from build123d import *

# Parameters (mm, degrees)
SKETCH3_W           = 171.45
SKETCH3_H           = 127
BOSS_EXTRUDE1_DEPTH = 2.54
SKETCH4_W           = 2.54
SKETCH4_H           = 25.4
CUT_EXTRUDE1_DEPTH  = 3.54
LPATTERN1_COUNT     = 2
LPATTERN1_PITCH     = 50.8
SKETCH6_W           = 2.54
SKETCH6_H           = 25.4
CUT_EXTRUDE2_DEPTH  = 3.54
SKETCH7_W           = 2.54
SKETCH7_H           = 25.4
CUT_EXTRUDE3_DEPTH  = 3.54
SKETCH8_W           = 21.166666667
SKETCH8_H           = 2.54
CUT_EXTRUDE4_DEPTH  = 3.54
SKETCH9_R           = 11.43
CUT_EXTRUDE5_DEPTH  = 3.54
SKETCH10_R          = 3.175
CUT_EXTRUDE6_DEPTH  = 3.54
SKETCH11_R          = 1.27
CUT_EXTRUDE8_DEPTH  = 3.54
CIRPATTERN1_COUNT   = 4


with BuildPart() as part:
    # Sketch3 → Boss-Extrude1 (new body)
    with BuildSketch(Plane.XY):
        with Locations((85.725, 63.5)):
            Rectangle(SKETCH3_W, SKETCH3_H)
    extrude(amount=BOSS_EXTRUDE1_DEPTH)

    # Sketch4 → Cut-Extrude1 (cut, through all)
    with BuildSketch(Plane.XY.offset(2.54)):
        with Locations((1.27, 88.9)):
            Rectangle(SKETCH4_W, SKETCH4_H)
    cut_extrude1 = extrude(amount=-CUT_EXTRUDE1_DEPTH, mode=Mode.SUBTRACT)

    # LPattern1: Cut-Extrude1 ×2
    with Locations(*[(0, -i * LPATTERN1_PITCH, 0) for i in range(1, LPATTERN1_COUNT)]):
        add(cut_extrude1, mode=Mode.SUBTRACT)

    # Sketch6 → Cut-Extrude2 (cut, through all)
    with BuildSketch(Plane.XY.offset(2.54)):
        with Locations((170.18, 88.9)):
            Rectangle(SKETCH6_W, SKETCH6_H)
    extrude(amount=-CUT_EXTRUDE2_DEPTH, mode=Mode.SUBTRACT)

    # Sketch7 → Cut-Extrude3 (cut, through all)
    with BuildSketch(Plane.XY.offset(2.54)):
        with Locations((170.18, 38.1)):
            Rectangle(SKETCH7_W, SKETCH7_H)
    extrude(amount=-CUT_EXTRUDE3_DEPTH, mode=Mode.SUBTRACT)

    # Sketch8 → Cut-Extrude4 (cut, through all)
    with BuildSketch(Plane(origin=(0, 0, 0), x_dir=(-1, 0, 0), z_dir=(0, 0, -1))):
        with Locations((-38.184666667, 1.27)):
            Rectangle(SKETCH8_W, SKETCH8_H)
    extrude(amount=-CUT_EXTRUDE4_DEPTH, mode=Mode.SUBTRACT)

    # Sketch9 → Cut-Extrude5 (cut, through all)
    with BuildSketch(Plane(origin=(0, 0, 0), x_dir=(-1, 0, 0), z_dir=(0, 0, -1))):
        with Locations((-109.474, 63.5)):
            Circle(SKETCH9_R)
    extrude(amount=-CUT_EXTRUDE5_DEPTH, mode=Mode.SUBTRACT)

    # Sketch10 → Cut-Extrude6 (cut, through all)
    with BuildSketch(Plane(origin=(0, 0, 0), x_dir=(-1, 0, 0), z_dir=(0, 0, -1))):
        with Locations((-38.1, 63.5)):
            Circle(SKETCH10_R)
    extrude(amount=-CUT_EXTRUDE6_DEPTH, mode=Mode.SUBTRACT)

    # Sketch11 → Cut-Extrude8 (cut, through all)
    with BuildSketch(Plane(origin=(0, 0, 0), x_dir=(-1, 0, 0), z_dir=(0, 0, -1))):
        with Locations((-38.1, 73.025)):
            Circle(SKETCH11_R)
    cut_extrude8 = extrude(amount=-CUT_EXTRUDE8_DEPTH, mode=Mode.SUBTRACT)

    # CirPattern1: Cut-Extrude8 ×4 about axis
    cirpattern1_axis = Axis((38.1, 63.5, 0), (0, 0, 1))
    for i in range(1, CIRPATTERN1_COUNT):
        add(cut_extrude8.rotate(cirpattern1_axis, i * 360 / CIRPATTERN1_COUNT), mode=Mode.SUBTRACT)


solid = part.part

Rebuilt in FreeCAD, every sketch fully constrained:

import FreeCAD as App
import Part
import Sketcher
from FreeCAD import Vector
Q = App.Units.Quantity


def add_polygon(sketch, points):
    """Adds a closed chain of lines whose ends are joined by coincident constraints."""
    first, n = sketch.GeometryCount, len(points)
    for a, b in zip(points, points[1:] + points[:1]):
        sketch.addGeometry(Part.LineSegment(App.Vector(*a, 0), App.Vector(*b, 0)), False)
    for i in range(n):
        sketch.addConstraint(Sketcher.Constraint("Coincident", first + i, 2, first + (i + 1) % n, 1))

doc = App.newDocument("Part")
body = doc.addObject("PartDesign::Body", "Body")

sketch1 = doc.addObject("Sketcher::SketchObject", "Sketch")
body.addObject(sketch1)
sketch1.AttachmentSupport = (doc.XY_Plane, [""])
sketch1.MapMode = "FlatFace"
add_polygon(sketch1, [(0, 127), (0, 0), (171, 0), (171, 127)])
sketch1.addConstraint(Sketcher.Constraint("Vertical", 0))
sketch1.addConstraint(Sketcher.Constraint("Horizontal", 1))
sketch1.addConstraint(Sketcher.Constraint("Vertical", 2))
sketch1.addConstraint(Sketcher.Constraint("Horizontal", 3))
sketch1.addConstraint(Sketcher.Constraint("Coincident", 0, 2, -1, 1))
sketch1.addConstraint(Sketcher.Constraint("DistanceY", 0, 2, 0, 1, Q("5 in")))
sketch1.addConstraint(Sketcher.Constraint("DistanceX", 1, 1, 1, 2, Q("6.75 in")))
pad1 = doc.addObject("PartDesign::Pad", "Pad")
body.addObject(pad1)
pad1.Profile = sketch1
pad1.Length = Q("0.1 in")

sketch2 = doc.addObject("Sketcher::SketchObject", "Sketch001")
body.addObject(sketch2)
sketch2.AttachmentSupport = (doc.XY_Plane, [""])
sketch2.MapMode = "FlatFace"
sketch2.AttachmentOffset = App.Placement(Vector(0, 0, 0.1 * 25.4), App.Rotation())
add_polygon(sketch2, [(0, 101.6), (0, 76.2), (2.5, 76.2), (2.5, 101.6)])
sketch2.addConstraint(Sketcher.Constraint("Vertical", 0))
sketch2.addConstraint(Sketcher.Constraint("Horizontal", 1))
sketch2.addConstraint(Sketcher.Constraint("Vertical", 2))
sketch2.addConstraint(Sketcher.Constraint("Horizontal", 3))
sketch2.addConstraint(Sketcher.Constraint("PointOnObject", 0, 2, -2))
sketch2.addConstraint(Sketcher.Constraint("DistanceY", 0, 2, 0, 1, Q("1 in")))
sketch2.addConstraint(Sketcher.Constraint("DistanceX", 1, 1, 1, 2, Q("0.1 in")))
sketch2.addConstraint(Sketcher.Constraint("DistanceY", -1, 1, 0, 2, Q("3 in")))
pocket1 = doc.addObject("PartDesign::Pocket", "Pocket")
body.addObject(pocket1)
pocket1.Profile = sketch2
pocket1.Type = "ThroughAll"
doc.recompute()

linearpattern = doc.addObject("PartDesign::LinearPattern", "LinearPattern")
body.addObject(linearpattern)
linearpattern.Originals = [pocket1]
linearpattern.Direction = (doc.Y_Axis, [""])
linearpattern.Mode = "offset"
linearpattern.Offset = Q("2 in")
linearpattern.Occurrences = 2
linearpattern.Reversed = True
body.Tip = linearpattern

sketch3 = doc.addObject("Sketcher::SketchObject", "Sketch002")
body.addObject(sketch3)
sketch3.AttachmentSupport = (doc.XY_Plane, [""])
sketch3.MapMode = "FlatFace"
sketch3.AttachmentOffset = App.Placement(Vector(0, 0, 0.1 * 25.4), App.Rotation())
add_polygon(sketch3, [(168.9, 101.6), (168.9, 76.2), (171.4, 76.2), (171.4, 101.6)])
sketch3.addConstraint(Sketcher.Constraint("Vertical", 0))
sketch3.addConstraint(Sketcher.Constraint("Horizontal", 1))
sketch3.addConstraint(Sketcher.Constraint("Vertical", 2))
sketch3.addConstraint(Sketcher.Constraint("Horizontal", 3))
sketch3.addConstraint(Sketcher.Constraint("DistanceY", 0, 2, 0, 1, Q("1 in")))
sketch3.addConstraint(Sketcher.Constraint("DistanceX", 1, 1, 1, 2, Q("0.1 in")))
sketch3.addConstraint(Sketcher.Constraint("DistanceY", -1, 1, 0, 2, Q("3 in")))
sketch3.addConstraint(Sketcher.Constraint("DistanceX", -1, 1, 0, 2, Q("6.65 in")))
pocket2 = doc.addObject("PartDesign::Pocket", "Pocket001")
body.addObject(pocket2)
pocket2.Profile = sketch3
pocket2.Type = "ThroughAll"

sketch4 = doc.addObject("Sketcher::SketchObject", "Sketch003")
body.addObject(sketch4)
sketch4.AttachmentSupport = (doc.XY_Plane, [""])
sketch4.MapMode = "FlatFace"
sketch4.AttachmentOffset = App.Placement(Vector(0, 0, 0.1 * 25.4), App.Rotation())
add_polygon(sketch4, [(168.9, 50.8), (168.9, 25.4), (171.4, 25.4), (171.4, 50.8)])
sketch4.addConstraint(Sketcher.Constraint("Vertical", 0))
sketch4.addConstraint(Sketcher.Constraint("Horizontal", 1))
sketch4.addConstraint(Sketcher.Constraint("Vertical", 2))
sketch4.addConstraint(Sketcher.Constraint("Horizontal", 3))
sketch4.addConstraint(Sketcher.Constraint("DistanceY", 0, 2, 0, 1, Q("1 in")))
sketch4.addConstraint(Sketcher.Constraint("DistanceX", 1, 1, 1, 2, Q("0.1 in")))
sketch4.addConstraint(Sketcher.Constraint("DistanceY", -1, 1, 0, 2, Q("1 in")))
sketch4.addConstraint(Sketcher.Constraint("DistanceX", -1, 1, 0, 2, Q("6.65 in")))
pocket3 = doc.addObject("PartDesign::Pocket", "Pocket002")
body.addObject(pocket3)
pocket3.Profile = sketch4
pocket3.Type = "ThroughAll"

sketch5 = doc.addObject("Sketcher::SketchObject", "Sketch004")
body.addObject(sketch5)
sketch5.AttachmentSupport = (doc.XY_Plane, [""])
sketch5.MapMode = "FlatFace"
add_polygon(sketch5, [(48.8, 2.5), (48.8, 0), (27.6, 0), (27.6, 2.5)])
sketch5.addConstraint(Sketcher.Constraint("Vertical", 0))
sketch5.addConstraint(Sketcher.Constraint("Horizontal", 1))
sketch5.addConstraint(Sketcher.Constraint("Vertical", 2))
sketch5.addConstraint(Sketcher.Constraint("Horizontal", 3))
sketch5.addConstraint(Sketcher.Constraint("PointOnObject", 0, 2, -1))
sketch5.addConstraint(Sketcher.Constraint("DistanceY", 0, 2, 0, 1, Q("0.1 in")))
sketch5.addConstraint(Sketcher.Constraint("DistanceX", -1, 1, 0, 2, Q("1.92 in")))
sketch5.addConstraint(Sketcher.Constraint("DistanceX", 1, 2, 1, 1, 21.166667))
pocket4 = doc.addObject("PartDesign::Pocket", "Pocket003")
body.addObject(pocket4)
pocket4.Profile = sketch5
pocket4.Type = "ThroughAll"
pocket4.Reversed = True

sketch6 = doc.addObject("Sketcher::SketchObject", "Sketch005")
body.addObject(sketch6)
sketch6.AttachmentSupport = (doc.XY_Plane, [""])
sketch6.MapMode = "FlatFace"
sketch6.addGeometry(Part.Circle(Vector(109, 64, 0), Vector(0, 0, 1), 11), False)
sketch6.addConstraint(Sketcher.Constraint("Diameter", 0, Q("0.9 in")))
sketch6.addConstraint(Sketcher.Constraint("DistanceY", -1, 1, 0, 3, Q("2.5 in")))
sketch6.addConstraint(Sketcher.Constraint("DistanceX", -1, 1, 0, 3, Q("4.31 in")))
pocket5 = doc.addObject("PartDesign::Pocket", "Pocket004")
body.addObject(pocket5)
pocket5.Profile = sketch6
pocket5.Type = "ThroughAll"
pocket5.Reversed = True

sketch7 = doc.addObject("Sketcher::SketchObject", "Sketch006")
body.addObject(sketch7)
sketch7.AttachmentSupport = (doc.XY_Plane, [""])
sketch7.MapMode = "FlatFace"
sketch7.addGeometry(Part.Circle(Vector(38.1, 63.5, 0), Vector(0, 0, 1), 3.2), False)
sketch7.addConstraint(Sketcher.Constraint("Diameter", 0, Q("0.25 in")))
sketch7.addConstraint(Sketcher.Constraint("DistanceX", -1, 1, 0, 3, Q("1.5 in")))
sketch7.addConstraint(Sketcher.Constraint("DistanceY", -1, 1, 0, 3, Q("2.5 in")))
pocket6 = doc.addObject("PartDesign::Pocket", "Pocket005")
body.addObject(pocket6)
pocket6.Profile = sketch7
pocket6.Type = "ThroughAll"
pocket6.Reversed = True

sketch8 = doc.addObject("Sketcher::SketchObject", "Sketch007")
body.addObject(sketch8)
sketch8.AttachmentSupport = (doc.XY_Plane, [""])
sketch8.MapMode = "FlatFace"
sketch8.addGeometry(Part.Circle(Vector(38.1, 73, 0), Vector(0, 0, 1), 1.3), False)
sketch8.addConstraint(Sketcher.Constraint("Diameter", 0, Q("0.1 in")))
sketch8.addConstraint(Sketcher.Constraint("DistanceX", -1, 1, 0, 3, Q("1.5 in")))
sketch8.addConstraint(Sketcher.Constraint("DistanceY", -1, 1, 0, 3, Q("2.875 in")))
pocket7 = doc.addObject("PartDesign::Pocket", "Pocket006")
body.addObject(pocket7)
pocket7.Profile = sketch8
pocket7.Type = "ThroughAll"
pocket7.Reversed = True
doc.recompute()

datumline = doc.addObject("PartDesign::Line", "DatumLine")
body.addObject(datumline)
datumline.Placement = App.Placement(Vector(38.1, 63.5, 0), App.Rotation(Vector(0, 0, 1), Vector(0, 0, 1)))
polarpattern = doc.addObject("PartDesign::PolarPattern", "PolarPattern")
body.addObject(polarpattern)
polarpattern.Originals = [pocket7]
polarpattern.Axis = (datumline, [""])
polarpattern.Angle = 360
polarpattern.Occurrences = 4
body.Tip = polarpattern

doc.recompute()
